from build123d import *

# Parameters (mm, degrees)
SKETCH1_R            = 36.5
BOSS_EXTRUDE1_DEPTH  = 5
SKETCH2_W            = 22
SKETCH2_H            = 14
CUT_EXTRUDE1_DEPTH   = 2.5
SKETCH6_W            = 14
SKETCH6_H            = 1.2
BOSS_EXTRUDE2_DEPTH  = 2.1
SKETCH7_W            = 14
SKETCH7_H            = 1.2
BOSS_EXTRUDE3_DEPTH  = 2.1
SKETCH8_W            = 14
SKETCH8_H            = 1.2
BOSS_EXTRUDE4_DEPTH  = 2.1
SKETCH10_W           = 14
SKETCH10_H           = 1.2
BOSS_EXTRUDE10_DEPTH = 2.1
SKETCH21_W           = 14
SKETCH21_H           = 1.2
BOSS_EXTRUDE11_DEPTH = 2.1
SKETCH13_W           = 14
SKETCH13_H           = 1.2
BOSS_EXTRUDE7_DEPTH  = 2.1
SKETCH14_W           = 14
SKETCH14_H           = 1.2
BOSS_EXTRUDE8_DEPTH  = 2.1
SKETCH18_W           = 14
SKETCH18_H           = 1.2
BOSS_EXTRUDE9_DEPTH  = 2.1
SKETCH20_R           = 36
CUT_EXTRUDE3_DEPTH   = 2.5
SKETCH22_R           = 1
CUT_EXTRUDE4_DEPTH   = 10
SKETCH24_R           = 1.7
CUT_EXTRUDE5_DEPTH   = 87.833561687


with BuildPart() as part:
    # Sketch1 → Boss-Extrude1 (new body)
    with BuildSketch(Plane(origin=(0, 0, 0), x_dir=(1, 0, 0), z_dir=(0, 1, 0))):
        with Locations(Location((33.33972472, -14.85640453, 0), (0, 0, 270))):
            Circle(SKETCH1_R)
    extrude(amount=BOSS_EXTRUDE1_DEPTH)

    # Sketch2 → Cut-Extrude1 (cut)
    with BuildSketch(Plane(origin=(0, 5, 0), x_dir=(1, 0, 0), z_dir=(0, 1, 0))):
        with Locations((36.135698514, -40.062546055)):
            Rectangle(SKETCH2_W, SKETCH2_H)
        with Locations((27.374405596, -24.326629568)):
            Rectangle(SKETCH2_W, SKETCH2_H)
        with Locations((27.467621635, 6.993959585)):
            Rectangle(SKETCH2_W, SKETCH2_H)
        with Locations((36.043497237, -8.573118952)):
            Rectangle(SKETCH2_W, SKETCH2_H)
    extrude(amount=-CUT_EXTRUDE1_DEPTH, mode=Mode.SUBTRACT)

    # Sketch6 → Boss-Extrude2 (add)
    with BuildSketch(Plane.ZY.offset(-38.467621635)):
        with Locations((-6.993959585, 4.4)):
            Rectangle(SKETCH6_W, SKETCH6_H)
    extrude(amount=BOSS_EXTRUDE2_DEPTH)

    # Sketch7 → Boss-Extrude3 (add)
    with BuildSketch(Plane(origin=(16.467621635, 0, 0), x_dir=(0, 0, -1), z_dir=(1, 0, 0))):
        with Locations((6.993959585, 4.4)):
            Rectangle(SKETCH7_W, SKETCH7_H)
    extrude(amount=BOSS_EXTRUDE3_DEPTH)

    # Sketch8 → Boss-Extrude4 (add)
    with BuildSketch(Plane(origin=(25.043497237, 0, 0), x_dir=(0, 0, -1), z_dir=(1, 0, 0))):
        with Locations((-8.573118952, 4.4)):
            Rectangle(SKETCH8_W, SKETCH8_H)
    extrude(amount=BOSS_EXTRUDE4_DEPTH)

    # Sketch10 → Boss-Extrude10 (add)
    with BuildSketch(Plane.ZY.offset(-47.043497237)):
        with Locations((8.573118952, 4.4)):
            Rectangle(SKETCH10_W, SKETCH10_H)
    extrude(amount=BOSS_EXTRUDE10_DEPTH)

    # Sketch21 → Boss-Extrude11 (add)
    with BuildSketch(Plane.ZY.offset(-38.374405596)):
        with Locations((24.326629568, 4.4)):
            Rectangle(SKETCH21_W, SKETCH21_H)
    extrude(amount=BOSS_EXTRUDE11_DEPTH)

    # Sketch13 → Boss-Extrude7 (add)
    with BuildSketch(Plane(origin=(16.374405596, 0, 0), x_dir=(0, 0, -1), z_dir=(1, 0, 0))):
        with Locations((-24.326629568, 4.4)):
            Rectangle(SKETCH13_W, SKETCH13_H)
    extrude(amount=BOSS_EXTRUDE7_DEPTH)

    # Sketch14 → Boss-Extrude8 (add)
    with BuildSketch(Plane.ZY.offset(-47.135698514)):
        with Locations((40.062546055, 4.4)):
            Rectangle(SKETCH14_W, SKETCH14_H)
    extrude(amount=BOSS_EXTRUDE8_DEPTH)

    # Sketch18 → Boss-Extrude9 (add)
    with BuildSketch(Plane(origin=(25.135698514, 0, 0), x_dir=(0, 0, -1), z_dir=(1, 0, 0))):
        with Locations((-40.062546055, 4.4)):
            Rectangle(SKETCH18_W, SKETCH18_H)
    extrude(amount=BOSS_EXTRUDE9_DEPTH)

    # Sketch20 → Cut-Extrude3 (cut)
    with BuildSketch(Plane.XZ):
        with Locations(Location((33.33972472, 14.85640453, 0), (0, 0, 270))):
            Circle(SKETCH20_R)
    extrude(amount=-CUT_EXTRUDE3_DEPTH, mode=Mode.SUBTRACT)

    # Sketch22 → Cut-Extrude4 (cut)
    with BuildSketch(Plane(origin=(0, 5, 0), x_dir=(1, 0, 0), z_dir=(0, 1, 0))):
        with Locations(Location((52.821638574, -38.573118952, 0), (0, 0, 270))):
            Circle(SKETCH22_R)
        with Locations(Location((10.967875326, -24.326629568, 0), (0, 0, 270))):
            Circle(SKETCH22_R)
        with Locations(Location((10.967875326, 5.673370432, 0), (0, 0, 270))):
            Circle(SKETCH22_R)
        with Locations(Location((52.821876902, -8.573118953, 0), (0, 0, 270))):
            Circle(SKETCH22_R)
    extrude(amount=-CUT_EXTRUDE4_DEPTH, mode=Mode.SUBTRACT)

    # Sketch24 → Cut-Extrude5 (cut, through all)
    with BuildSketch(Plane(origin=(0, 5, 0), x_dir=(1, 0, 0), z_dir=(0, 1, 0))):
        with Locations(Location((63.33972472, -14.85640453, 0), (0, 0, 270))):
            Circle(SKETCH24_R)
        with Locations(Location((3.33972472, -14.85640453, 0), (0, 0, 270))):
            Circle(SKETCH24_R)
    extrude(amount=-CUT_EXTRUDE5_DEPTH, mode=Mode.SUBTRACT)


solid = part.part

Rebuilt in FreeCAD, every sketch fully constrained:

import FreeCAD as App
import Part
import Sketcher

V = App.Vector
Q = App.Units.Quantity

doc = App.newDocument("Part")
params = doc.addObject("Spreadsheet::Sheet", "Params")
for row, (alias, value) in enumerate([
    ("sketch1_diameter", "73 mm"),
    ("pad1_length", "5 mm"),
    ("sketch2_width", "22 mm"),
    ("sketch2_height", "14 mm"),
    ("pocket1_length", "2.5 mm"),
    ("sketch3_height", "14 mm"),
    ("sketch3_width", "1.2 mm"),
    ("pad2_length", "2.1 mm"),
    ("sketch4_height", "14 mm"),
    ("sketch4_width", "1.2 mm"),
    ("pad3_length", "2.1 mm"),
    ("sketch5_height", "14 mm"),
    ("sketch5_width", "1.2 mm"),
    ("pad4_length", "2.1 mm"),
    ("sketch6_height", "14 mm"),
    ("sketch6_width", "1.2 mm"),
    ("pad5_length", "2.1 mm"),
    ("sketch7_height", "14 mm"),
    ("sketch7_width", "1.2 mm"),
    ("pad6_length", "2.1 mm"),
    ("sketch8_height", "14 mm"),
    ("sketch8_width", "1.2 mm"),
    ("pad7_length", "2.1 mm"),
    ("sketch9_height", "14 mm"),
    ("sketch9_width", "1.2 mm"),
    ("pad8_length", "2.1 mm"),
    ("sketch10_height", "14 mm"),
    ("sketch10_width", "1.2 mm"),
    ("pad9_length", "2.1 mm"),
    ("sketch11_diameter", "72 mm"),
    ("pocket2_length", "2.5 mm"),
    ("sketch12_diameter", "2 mm"),
    ("pocket3_length", "10 mm"),
    ("sketch13_diameter", "3.4 mm"),
], start=1):
    params.set(f"A{row}", alias)
    params.set(f"B{row}", "=" + value)
    params.setAlias(f"B{row}", alias)

body = doc.addObject("PartDesign::Body", "Body")

# Sketch on XZ plane
sketch1 = doc.addObject("Sketcher::SketchObject", "Sketch")
body.addObject(sketch1)
sketch1.AttachmentSupport = (doc.XZ_Plane, [""])
sketch1.MapMode = "FlatFace"
sketch1.addGeometry(Part.Circle(V(33, 15, 0), V(0, 0, 1), 36), False)
sketch1.addConstraint(Sketcher.Constraint("Diameter", 0, Q("73 mm")))
sketch1.addConstraint(Sketcher.Constraint("DistanceX", -1, 1, 0, 3, Q("33.339725 mm")))
sketch1.addConstraint(Sketcher.Constraint("DistanceY", -1, 1, 0, 3, Q("14.856405 mm")))
sketch1.setExpression("Constraints[0]", "Params.sketch1_diameter")
pad1 = doc.addObject("PartDesign::Pad", "Pad")
body.addObject(pad1)
pad1.Profile = sketch1
pad1.setExpression("Length", "Params.pad1_length")
pad1.Reversed = True

# Sketch on XZ plane
sketch2 = doc.addObject("Sketcher::SketchObject", "Sketch001")
body.addObject(sketch2)
sketch2.AttachmentSupport = (doc.XZ_Plane, [""])
sketch2.MapMode = "FlatFace"
sketch2.AttachmentOffset = App.Placement(V(0, 0, -5), App.Rotation())
sketch2.addGeometry(Part.LineSegment(V(25, 33, 0), V(25, 47, 0)), False)
sketch2.addGeometry(Part.LineSegment(V(25, 47, 0), V(47, 47, 0)), False)
sketch2.addGeometry(Part.LineSegment(V(47, 47, 0), V(47, 33, 0)), False)
sketch2.addGeometry(Part.LineSegment(V(47, 33, 0), V(25, 33, 0)), False)
sketch2.addGeometry(Part.LineSegment(V(16, 17, 0), V(16, 31, 0)), False)
sketch2.addGeometry(Part.LineSegment(V(16, 31, 0), V(38, 31, 0)), False)
sketch2.addGeometry(Part.LineSegment(V(38, 31, 0), V(38, 17, 0)), False)
sketch2.addGeometry(Part.LineSegment(V(38, 17, 0), V(16, 17, 0)), False)
sketch2.addGeometry(Part.LineSegment(V(16, -14, 0), V(16, 0, 0)), False)
sketch2.addGeometry(Part.LineSegment(V(16, 0, 0), V(38, 0, 0)), False)
sketch2.addGeometry(Part.LineSegment(V(38, 0, 0), V(38, -14, 0)), False)
sketch2.addGeometry(Part.LineSegment(V(38, -14, 0), V(16, -14, 0)), False)
sketch2.addGeometry(Part.LineSegment(V(25, 2, 0), V(25, 16, 0)), False)
sketch2.addGeometry(Part.LineSegment(V(25, 16, 0), V(47, 16, 0)), False)
sketch2.addGeometry(Part.LineSegment(V(47, 16, 0), V(47, 2, 0)), False)
sketch2.addGeometry(Part.LineSegment(V(47, 2, 0), V(25, 2, 0)), False)
sketch2.addConstraint(Sketcher.Constraint("Coincident", 0, 2, 1, 1))
sketch2.addConstraint(Sketcher.Constraint("Coincident", 1, 2, 2, 1))
sketch2.addConstraint(Sketcher.Constraint("Coincident", 2, 2, 3, 1))
sketch2.addConstraint(Sketcher.Constraint("Coincident", 3, 2, 0, 1))
sketch2.addConstraint(Sketcher.Constraint("Coincident", 4, 2, 5, 1))
sketch2.addConstraint(Sketcher.Constraint("Coincident", 5, 2, 6, 1))
sketch2.addConstraint(Sketcher.Constraint("Coincident", 6, 2, 7, 1))
sketch2.addConstraint(Sketcher.Constraint("Coincident", 7, 2, 4, 1))
sketch2.addConstraint(Sketcher.Constraint("Coincident", 8, 2, 9, 1))
sketch2.addConstraint(Sketcher.Constraint("Coincident", 9, 2, 10, 1))
sketch2.addConstraint(Sketcher.Constraint("Coincident", 10, 2, 11, 1))
sketch2.addConstraint(Sketcher.Constraint("Coincident", 11, 2, 8, 1))
sketch2.addConstraint(Sketcher.Constraint("Coincident", 12, 2, 13, 1))
sketch2.addConstraint(Sketcher.Constraint("Coincident", 13, 2, 14, 1))
sketch2.addConstraint(Sketcher.Constraint("Coincident", 14, 2, 15, 1))
sketch2.addConstraint(Sketcher.Constraint("Coincident", 15, 2, 12, 1))
sketch2.addConstraint(Sketcher.Constraint("Vertical", 0))
sketch2.addConstraint(Sketcher.Constraint("Horizontal", 1))
sketch2.addConstraint(Sketcher.Constraint("Vertical", 2))
sketch2.addConstraint(Sketcher.Constraint("Horizontal", 3))
sketch2.addConstraint(Sketcher.Constraint("Vertical", 4))
sketch2.addConstraint(Sketcher.Constraint("Horizontal", 5))
sketch2.addConstraint(Sketcher.Constraint("Vertical", 6))
sketch2.addConstraint(Sketcher.Constraint("Horizontal", 7))
sketch2.addConstraint(Sketcher.Constraint("Vertical", 8))
sketch2.addConstraint(Sketcher.Constraint("Horizontal", 9))
sketch2.addConstraint(Sketcher.Constraint("Vertical", 10))
sketch2.addConstraint(Sketcher.Constraint("Horizontal", 11))
sketch2.addConstraint(Sketcher.Constraint("Vertical", 12))
sketch2.addConstraint(Sketcher.Constraint("Horizontal", 13))
sketch2.addConstraint(Sketcher.Constraint("Vertical", 14))
sketch2.addConstraint(Sketcher.Constraint("Horizontal", 15))
sketch2.addConstraint(Sketcher.Constraint("Equal", 3, 5))
sketch2.addConstraint(Sketcher.Constraint("Equal", 7, 9))
sketch2.addConstraint(Sketcher.Constraint("Equal", 11, 13))
sketch2.addConstraint(Sketcher.Constraint("Equal", 2, 4))
sketch2.addConstraint(Sketcher.Constraint("Equal", 6, 8))
sketch2.addConstraint(Sketcher.Constraint("Equal", 10, 12))
sketch2.addConstraint(Sketcher.Constraint("DistanceX", 1, 1, 1, 2, Q("22 mm")))
sketch2.addConstraint(Sketcher.Constraint("DistanceY", 0, 1, 0, 2, Q("14 mm")))
sketch2.addConstraint(Sketcher.Constraint("DistanceX", -1, 1, 0, 2, Q("25.135699 mm")))
sketch2.addConstraint(Sketcher.Constraint("DistanceX", 12, 2, 3, 2, Q("0.092201 mm")))
sketch2.addConstraint(Sketcher.Constraint("DistanceY", -1, 1, 4, 2, Q("31.32663 mm")))
sketch2.addConstraint(Sketcher.Constraint("DistanceX", -1, 1, 8, 2, Q("16.467622 mm")))
sketch2.addConstraint(Sketcher.Constraint("DistanceY", -1, 1, 8, 2, Q("0.00604 mm")))
sketch2.addConstraint(Sketcher.Constraint("DistanceY", -1, 1, 12, 2, Q("15.573119 mm")))
sketch2.addConstraint(Sketcher.Constraint("DistanceX", 7, 2, 12, 2, Q("8.669092 mm")))
sketch2.addConstraint(Sketcher.Constraint("DistanceY", -1, 1, 0, 2, Q("47.062546 mm")))
sketch2.setExpression("Constraints[38]", "Params.sketch2_width")
sketch2.setExpression("Constraints[39]", "Params.sketch2_height")
pocket1 = doc.addObject("PartDesign::Pocket", "Pocket")
body.addObject(pocket1)
pocket1.Profile = sketch2
pocket1.setExpression("Length", "Params.pocket1_length")
pocket1.Reversed = True

# Sketch on YZ plane
sketch3 = doc.addObject("Sketcher::SketchObject", "Sketch002")
body.addObject(sketch3)
sketch3.AttachmentSupport = (doc.YZ_Plane, [""])
sketch3.MapMode = "FlatFace"
sketch3.AttachmentOffset = App.Placement(V(0, 0, 38.467622), App.Rotation())
sketch3.addGeometry(Part.LineSegment(V(5, -14, 0), V(3.8, -14, 0)), False)
sketch3.addGeometry(Part.LineSegment(V(3.8, -14, 0), V(3.8, 0, 0)), False)
sketch3.addGeometry(Part.LineSegment(V(3.8, 0, 0), V(5, 0, 0)), False)
sketch3.addGeometry(Part.LineSegment(V(5, 0, 0), V(5, -14, 0)), False)
sketch3.addConstraint(Sketcher.Constraint("Coincident", 0, 2, 1, 1))
sketch3.addConstraint(Sketcher.Constraint("Coincident", 1, 2, 2, 1))
sketch3.addConstraint(Sketcher.Constraint("Coincident", 2, 2, 3, 1))
sketch3.addConstraint(Sketcher.Constraint("Coincident", 3, 2, 0, 1))
sketch3.addConstraint(Sketcher.Constraint("Horizontal", 0))
sketch3.addConstraint(Sketcher.Constraint("Vertical", 1))
sketch3.addConstraint(Sketcher.Constraint("Horizontal", 2))
sketch3.addConstraint(Sketcher.Constraint("Vertical", 3))
sketch3.addConstraint(Sketcher.Constraint("DistanceY", 1, 1, 1, 2, Q("14 mm")))
sketch3.addConstraint(Sketcher.Constraint("DistanceX", 0, 2, 0, 1, Q("1.2 mm")))
sketch3.addConstraint(Sketcher.Constraint("DistanceX", -1, 1, 2, 2, Q("5 mm")))
sketch3.addConstraint(Sketcher.Constraint("DistanceY", 0, 2, -1, 1, Q("13.99396 mm")))
sketch3.setExpression("Constraints[8]", "Params.sketch3_height")
sketch3.setExpression("Constraints[9]", "Params.sketch3_width")
pad2 = doc.addObject("PartDesign::Pad", "Pad001")
body.addObject(pad2)
pad2.Profile = sketch3
pad2.setExpression("Length", "Params.pad2_length")
pad2.Reversed = True

# Sketch on YZ plane
sketch4 = doc.addObject("Sketcher::SketchObject", "Sketch003")
body.addObject(sketch4)
sketch4.AttachmentSupport = (doc.YZ_Plane, [""])
sketch4.MapMode = "FlatFace"
sketch4.AttachmentOffset = App.Placement(V(0, 0, 16.467622), App.Rotation())
sketch4.addGeometry(Part.LineSegment(V(5, 0, 0), V(3.8, 0, 0)), False)
sketch4.addGeometry(Part.LineSegment(V(3.8, 0, 0), V(3.8, -14, 0)), False)
sketch4.addGeometry(Part.LineSegment(V(3.8, -14, 0), V(5, -14, 0)), False)
sketch4.addGeometry(Part.LineSegment(V(5, -14, 0), V(5, 0, 0)), False)
sketch4.addConstraint(Sketcher.Constraint("Coincident", 0, 2, 1, 1))
sketch4.addConstraint(Sketcher.Constraint("Coincident", 1, 2, 2, 1))
sketch4.addConstraint(Sketcher.Constraint("Coincident", 2, 2, 3, 1))
sketch4.addConstraint(Sketcher.Constraint("Coincident", 3, 2, 0, 1))
sketch4.addConstraint(Sketcher.Constraint("Horizontal", 0))
sketch4.addConstraint(Sketcher.Constraint("Vertical", 1))
sketch4.addConstraint(Sketcher.Constraint("Horizontal", 2))
sketch4.addConstraint(Sketcher.Constraint("Vertical", 3))
sketch4.addConstraint(Sketcher.Constraint("DistanceY", 1, 2, 1, 1, Q("14 mm")))
sketch4.addConstraint(Sketcher.Constraint("DistanceX", 0, 2, 0, 1, Q("1.2 mm")))
sketch4.addConstraint(Sketcher.Constraint("DistanceX", -1, 1, 2, 2, Q("5 mm")))
sketch4.addConstraint(Sketcher.Constraint("DistanceY", -1, 1, 0, 2, Q("0.00604 mm")))
sketch4.setExpression("Constraints[8]", "Params.sketch4_height")
sketch4.setExpression("Constraints[9]", "Params.sketch4_width")
pad3 = doc.addObject("PartDesign::Pad", "Pad002")
body.addObject(pad3)
pad3.Profile = sketch4
pad3.setExpression("Length", "Params.pad3_length")

# Sketch on YZ plane
sketch5 = doc.addObject("Sketcher::SketchObject", "Sketch004")
body.addObject(sketch5)
sketch5.AttachmentSupport = (doc.YZ_Plane, [""])
sketch5.MapMode = "FlatFace"
sketch5.AttachmentOffset = App.Placement(V(0, 0, 25.043497), App.Rotation())
sketch5.addGeometry(Part.LineSegment(V(5, 15.6, 0), V(3.8, 15.6, 0)), False)
sketch5.addGeometry(Part.LineSegment(V(3.8, 15.6, 0), V(3.8, 1.6, 0)), False)
sketch5.addGeometry(Part.LineSegment(V(3.8, 1.6, 0), V(5, 1.6, 0)), False)
sketch5.addGeometry(Part.LineSegment(V(5, 1.6, 0), V(5, 15.6, 0)), False)
sketch5.addConstraint(Sketcher.Constraint("Coincident", 0, 2, 1, 1))
sketch5.addConstraint(Sketcher.Constraint("Coincident", 1, 2, 2, 1))
sketch5.addConstraint(Sketcher.Constraint("Coincident", 2, 2, 3, 1))
sketch5.addConstraint(Sketcher.Constraint("Coincident", 3, 2, 0, 1))
sketch5.addConstraint(Sketcher.Constraint("Horizontal", 0))
sketch5.addConstraint(Sketcher.Constraint("Vertical", 1))
sketch5.addConstraint(Sketcher.Constraint("Horizontal", 2))
sketch5.addConstraint(Sketcher.Constraint("Vertical", 3))
sketch5.addConstraint(Sketcher.Constraint("DistanceY", 1, 2, 1, 1, Q("14 mm")))
sketch5.addConstraint(Sketcher.Constraint("DistanceX", 0, 2, 0, 1, Q("1.2 mm")))
sketch5.addConstraint(Sketcher.Constraint("DistanceX", -1, 1, 2, 2, Q("5 mm")))
sketch5.addConstraint(Sketcher.Constraint("DistanceY", -1, 1, 0, 2, Q("15.573119 mm")))
sketch5.setExpression("Constraints[8]", "Params.sketch5_height")
sketch5.setExpression("Constraints[9]", "Params.sketch5_width")
pad4 = doc.addObject("PartDesign::Pad", "Pad003")
body.addObject(pad4)
pad4.Profile = sketch5
pad4.setExpression("Length", "Params.pad4_length")

# Sketch on YZ plane
sketch6 = doc.addObject("Sketcher::SketchObject", "Sketch005")
body.addObject(sketch6)
sketch6.AttachmentSupport = (doc.YZ_Plane, [""])
sketch6.MapMode = "FlatFace"
sketch6.AttachmentOffset = App.Placement(V(0, 0, 47.043497), App.Rotation())
sketch6.addGeometry(Part.LineSegment(V(5, 1.6, 0), V(3.8, 1.6, 0)), False)
sketch6.addGeometry(Part.LineSegment(V(3.8, 1.6, 0), V(3.8, 15.6, 0)), False)
sketch6.addGeometry(Part.LineSegment(V(3.8, 15.6, 0), V(5, 15.6, 0)), False)
sketch6.addGeometry(Part.LineSegment(V(5, 15.6, 0), V(5, 1.6, 0)), False)
sketch6.addConstraint(Sketcher.Constraint("Coincident", 0, 2, 1, 1))
sketch6.addConstraint(Sketcher.Constraint("Coincident", 1, 2, 2, 1))
sketch6.addConstraint(Sketcher.Constraint("Coincident", 2, 2, 3, 1))
sketch6.addConstraint(Sketcher.Constraint("Coincident", 3, 2, 0, 1))
sketch6.addConstraint(Sketcher.Constraint("Horizontal", 0))
sketch6.addConstraint(Sketcher.Constraint("Vertical", 1))
sketch6.addConstraint(Sketcher.Constraint("Horizontal", 2))
sketch6.addConstraint(Sketcher.Constraint("Vertical", 3))
sketch6.addConstraint(Sketcher.Constraint("DistanceY", 1, 1, 1, 2, Q("14 mm")))
sketch6.addConstraint(Sketcher.Constraint("DistanceX", 0, 2, 0, 1, Q("1.2 mm")))
sketch6.addConstraint(Sketcher.Constraint("DistanceX", -1, 1, 2, 2, Q("5 mm")))
sketch6.addConstraint(Sketcher.Constraint("DistanceY", -1, 1, 0, 2, Q("1.573119 mm")))
sketch6.setExpression("Constraints[8]", "Params.sketch6_height")
sketch6.setExpression("Constraints[9]", "Params.sketch6_width")
pad5 = doc.addObject("PartDesign::Pad", "Pad004")
body.addObject(pad5)
pad5.Profile = sketch6
pad5.setExpression("Length", "Params.pad5_length")
pad5.Reversed = True

# Sketch on YZ plane
sketch7 = doc.addObject("Sketcher::SketchObject", "Sketch006")
body.addObject(sketch7)
sketch7.AttachmentSupport = (doc.YZ_Plane, [""])
sketch7.MapMode = "FlatFace"
sketch7.AttachmentOffset = App.Placement(V(0, 0, 38.374406), App.Rotation())
sketch7.addGeometry(Part.LineSegment(V(5, 17.3, 0), V(3.8, 17.3, 0)), False)
sketch7.addGeometry(Part.LineSegment(V(3.8, 17.3, 0), V(3.8, 31.3, 0)), False)
sketch7.addGeometry(Part.LineSegment(V(3.8, 31.3, 0), V(5, 31.3, 0)), False)
sketch7.addGeometry(Part.LineSegment(V(5, 31.3, 0), V(5, 17.3, 0)), False)
sketch7.addConstraint(Sketcher.Constraint("Coincident", 0, 2, 1, 1))
sketch7.addConstraint(Sketcher.Constraint("Coincident", 1, 2, 2, 1))
sketch7.addConstraint(Sketcher.Constraint("Coincident", 2, 2, 3, 1))
sketch7.addConstraint(Sketcher.Constraint("Coincident", 3, 2, 0, 1))
sketch7.addConstraint(Sketcher.Constraint("Horizontal", 0))
sketch7.addConstraint(Sketcher.Constraint("Vertical", 1))
sketch7.addConstraint(Sketcher.Constraint("Horizontal", 2))
sketch7.addConstraint(Sketcher.Constraint("Vertical", 3))
sketch7.addConstraint(Sketcher.Constraint("DistanceY", 1, 1, 1, 2, Q("14 mm")))
sketch7.addConstraint(Sketcher.Constraint("DistanceX", 0, 2, 0, 1, Q("1.2 mm")))
sketch7.addConstraint(Sketcher.Constraint("DistanceX", -1, 1, 2, 2, Q("5 mm")))
sketch7.addConstraint(Sketcher.Constraint("DistanceY", -1, 1, 0, 2, Q("17.32663 mm")))
sketch7.setExpression("Constraints[8]", "Params.sketch7_height")
sketch7.setExpression("Constraints[9]", "Params.sketch7_width")
pad6 = doc.addObject("PartDesign::Pad", "Pad005")
body.addObject(pad6)
pad6.Profile = sketch7
pad6.setExpression("Length", "Params.pad6_length")
pad6.Reversed = True

# Sketch on YZ plane
sketch8 = doc.addObject("Sketcher::SketchObject", "Sketch007")
body.addObject(sketch8)
sketch8.AttachmentSupport = (doc.YZ_Plane, [""])
sketch8.MapMode = "FlatFace"
sketch8.AttachmentOffset = App.Placement(V(0, 0, 16.374406), App.Rotation())
sketch8.addGeometry(Part.LineSegment(V(5, 31.3, 0), V(3.8, 31.3, 0)), False)
sketch8.addGeometry(Part.LineSegment(V(3.8, 31.3, 0), V(3.8, 17.3, 0)), False)
sketch8.addGeometry(Part.LineSegment(V(3.8, 17.3, 0), V(5, 17.3, 0)), False)
sketch8.addGeometry(Part.LineSegment(V(5, 17.3, 0), V(5, 31.3, 0)), False)
sketch8.addConstraint(Sketcher.Constraint("Coincident", 0, 2, 1, 1))
sketch8.addConstraint(Sketcher.Constraint("Coincident", 1, 2, 2, 1))
sketch8.addConstraint(Sketcher.Constraint("Coincident", 2, 2, 3, 1))
sketch8.addConstraint(Sketcher.Constraint("Coincident", 3, 2, 0, 1))
sketch8.addConstraint(Sketcher.Constraint("Horizontal", 0))
sketch8.addConstraint(Sketcher.Constraint("Vertical", 1))
sketch8.addConstraint(Sketcher.Constraint("Horizontal", 2))
sketch8.addConstraint(Sketcher.Constraint("Vertical", 3))
sketch8.addConstraint(Sketcher.Constraint("DistanceY", 1, 2, 1, 1, Q("14 mm")))
sketch8.addConstraint(Sketcher.Constraint("DistanceX", 0, 2, 0, 1, Q("1.2 mm")))
sketch8.addConstraint(Sketcher.Constraint("DistanceX", -1, 1, 2, 2, Q("5 mm")))
sketch8.addConstraint(Sketcher.Constraint("DistanceY", -1, 1, 0, 2, Q("31.32663 mm")))
sketch8.setExpression("Constraints[8]", "Params.sketch8_height")
sketch8.setExpression("Constraints[9]", "Params.sketch8_width")
pad7 = doc.addObject("PartDesign::Pad", "Pad006")
body.addObject(pad7)
pad7.Profile = sketch8
pad7.setExpression("Length", "Params.pad7_length")

# Sketch on YZ plane
sketch9 = doc.addObject("Sketcher::SketchObject", "Sketch008")
body.addObject(sketch9)
sketch9.AttachmentSupport = (doc.YZ_Plane, [""])
sketch9.MapMode = "FlatFace"
sketch9.AttachmentOffset = App.Placement(V(0, 0, 47.135699), App.Rotation())
sketch9.addGeometry(Part.LineSegment(V(5, 33.1, 0), V(3.8, 33.1, 0)), False)
sketch9.addGeometry(Part.LineSegment(V(3.8, 33.1, 0), V(3.8, 47.1, 0)), False)
sketch9.addGeometry(Part.LineSegment(V(3.8, 47.1, 0), V(5, 47.1, 0)), False)
sketch9.addGeometry(Part.LineSegment(V(5, 47.1, 0), V(5, 33.1, 0)), False)
sketch9.addConstraint(Sketcher.Constraint("Coincident", 0, 2, 1, 1))
sketch9.addConstraint(Sketcher.Constraint("Coincident", 1, 2, 2, 1))
sketch9.addConstraint(Sketcher.Constraint("Coincident", 2, 2, 3, 1))
sketch9.addConstraint(Sketcher.Constraint("Coincident", 3, 2, 0, 1))
sketch9.addConstraint(Sketcher.Constraint("Horizontal", 0))
sketch9.addConstraint(Sketcher.Constraint("Vertical", 1))
sketch9.addConstraint(Sketcher.Constraint("Horizontal", 2))
sketch9.addConstraint(Sketcher.Constraint("Vertical", 3))
sketch9.addConstraint(Sketcher.Constraint("DistanceY", 1, 1, 1, 2, Q("14 mm")))
sketch9.addConstraint(Sketcher.Constraint("DistanceX", 0, 2, 0, 1, Q("1.2 mm")))
sketch9.addConstraint(Sketcher.Constraint("DistanceX", -1, 1, 2, 2, Q("5 mm")))
sketch9.addConstraint(Sketcher.Constraint("DistanceY", -1, 1, 0, 2, Q("33.062546 mm")))
sketch9.setExpression("Constraints[8]", "Params.sketch9_height")
sketch9.setExpression("Constraints[9]", "Params.sketch9_width")
pad8 = doc.addObject("PartDesign::Pad", "Pad007")
body.addObject(pad8)
pad8.Profile = sketch9
pad8.setExpression("Length", "Params.pad8_length")
pad8.Reversed = True

# Sketch on YZ plane
sketch10 = doc.addObject("Sketcher::SketchObject", "Sketch009")
body.addObject(sketch10)
sketch10.AttachmentSupport = (doc.YZ_Plane, [""])
sketch10.MapMode = "FlatFace"
sketch10.AttachmentOffset = App.Placement(V(0, 0, 25.135699), App.Rotation())
sketch10.addGeometry(Part.LineSegment(V(5, 47.1, 0), V(3.8, 47.1, 0)), False)
sketch10.addGeometry(Part.LineSegment(V(3.8, 47.1, 0), V(3.8, 33.1, 0)), False)
sketch10.addGeometry(Part.LineSegment(V(3.8, 33.1, 0), V(5, 33.1, 0)), False)
sketch10.addGeometry(Part.LineSegment(V(5, 33.1, 0), V(5, 47.1, 0)), False)
sketch10.addConstraint(Sketcher.Constraint("Coincident", 0, 2, 1, 1))
sketch10.addConstraint(Sketcher.Constraint("Coincident", 1, 2, 2, 1))
sketch10.addConstraint(Sketcher.Constraint("Coincident", 2, 2, 3, 1))
sketch10.addConstraint(Sketcher.Constraint("Coincident", 3, 2, 0, 1))
sketch10.addConstraint(Sketcher.Constraint("Horizontal", 0))
sketch10.addConstraint(Sketcher.Constraint("Vertical", 1))
sketch10.addConstraint(Sketcher.Constraint("Horizontal", 2))
sketch10.addConstraint(Sketcher.Constraint("Vertical", 3))
sketch10.addConstraint(Sketcher.Constraint("DistanceY", 1, 2, 1, 1, Q("14 mm")))
sketch10.addConstraint(Sketcher.Constraint("DistanceX", 0, 2, 0, 1, Q("1.2 mm")))
sketch10.addConstraint(Sketcher.Constraint("DistanceX", -1, 1, 2, 2, Q("5 mm")))
sketch10.addConstraint(Sketcher.Constraint("DistanceY", -1, 1, 0, 2, Q("47.062546 mm")))
sketch10.setExpression("Constraints[8]", "Params.sketch10_height")
sketch10.setExpression("Constraints[9]", "Params.sketch10_width")
pad9 = doc.addObject("PartDesign::Pad", "Pad008")
body.addObject(pad9)
pad9.Profile = sketch10
pad9.setExpression("Length", "Params.pad9_length")

# Sketch on XZ plane
sketch11 = doc.addObject("Sketcher::SketchObject", "Sketch010")
body.addObject(sketch11)
sketch11.AttachmentSupport = (doc.XZ_Plane, [""])
sketch11.MapMode = "FlatFace"
sketch11.addGeometry(Part.Circle(V(33, 15, 0), V(0, 0, 1), 36), False)
sketch11.addConstraint(Sketcher.Constraint("Diameter", 0, Q("72 mm")))
sketch11.addConstraint(Sketcher.Constraint("DistanceX", -1, 1, 0, 3, Q("33.339725 mm")))
sketch11.addConstraint(Sketcher.Constraint("DistanceY", -1, 1, 0, 3, Q("14.856405 mm")))
sketch11.setExpression("Constraints[0]", "Params.sketch11_diameter")
pocket2 = doc.addObject("PartDesign::Pocket", "Pocket001")
body.addObject(pocket2)
pocket2.Profile = sketch11
pocket2.setExpression("Length", "Params.pocket2_length")

# Sketch on XZ plane
sketch12 = doc.addObject("Sketcher::SketchObject", "Sketch011")
body.addObject(sketch12)
sketch12.AttachmentSupport = (doc.XZ_Plane, [""])
sketch12.MapMode = "FlatFace"
sketch12.AttachmentOffset = App.Placement(V(0, 0, -5), App.Rotation())
sketch12.addGeometry(Part.Circle(V(52.8, 38.6, 0), V(0, 0, 1), 1), False)
sketch12.addGeometry(Part.Circle(V(11, 24.3, 0), V(0, 0, 1), 1), False)
sketch12.addGeometry(Part.Circle(V(11, -5.7, 0), V(0, 0, 1), 1), False)
sketch12.addGeometry(Part.Circle(V(52.8, 8.6, 0), V(0, 0, 1), 1), False)
sketch12.addConstraint(Sketcher.Constraint("Equal", 0, 1))
sketch12.addConstraint(Sketcher.Constraint("Equal", 1, 2))
sketch12.addConstraint(Sketcher.Constraint("Equal", 2, 3))
sketch12.addConstraint(Sketcher.Constraint("Vertical", 1, 3, 2, 3))
sketch12.addConstraint(Sketcher.Constraint("Diameter", 0, Q("2 mm")))
sketch12.addConstraint(Sketcher.Constraint("DistanceY", 2, 3, 1, 3, Q("30 mm")))
sketch12.addConstraint(Sketcher.Constraint("DistanceY", 3, 3, 0, 3, Q("30 mm")))
sketch12.addConstraint(Sketcher.Constraint("DistanceX", 2, 3, 3, 3, Q("41.854002 mm")))
sketch12.addConstraint(Sketcher.Constraint("DistanceX", -1, 1, 0, 3, Q("52.821639 mm")))
sketch12.addConstraint(Sketcher.Constraint("DistanceY", -1, 1, 0, 3, Q("38.573119 mm")))
sketch12.addConstraint(Sketcher.Constraint("DistanceY", -1, 1, 1, 3, Q("24.32663 mm")))
sketch12.addConstraint(Sketcher.Constraint("DistanceX", 0, 3, 3, 3, Q("0.000238 mm")))
sketch12.setExpression("Constraints[4]", "Params.sketch12_diameter")
pocket3 = doc.addObject("PartDesign::Pocket", "Pocket002")
body.addObject(pocket3)
pocket3.Profile = sketch12
pocket3.setExpression("Length", "Params.pocket3_length")
pocket3.Reversed = True

# Sketch on XZ plane
sketch13 = doc.addObject("Sketcher::SketchObject", "Sketch012")
body.addObject(sketch13)
sketch13.AttachmentSupport = (doc.XZ_Plane, [""])
sketch13.MapMode = "FlatFace"
sketch13.AttachmentOffset = App.Placement(V(0, 0, -5), App.Rotation())
sketch13.addGeometry(Part.Circle(V(63.3, 14.9, 0), V(0, 0, 1), 1.7), False)
sketch13.addGeometry(Part.Circle(V(3.3, 14.9, 0), V(0, 0, 1), 1.7), False)
sketch13.addConstraint(Sketcher.Constraint("Equal", 0, 1))
sketch13.addConstraint(Sketcher.Constraint("Horizontal", 0, 3, 1, 3))
sketch13.addConstraint(Sketcher.Constraint("Diameter", 0, Q("3.4 mm")))
sketch13.addConstraint(Sketcher.Constraint("DistanceX", 1, 3, 0, 3, Q("60 mm")))
sketch13.addConstraint(Sketcher.Constraint("DistanceX", -1, 1, 0, 3, Q("63.339725 mm")))
sketch13.addConstraint(Sketcher.Constraint("DistanceY", -1, 1, 0, 3, Q("14.856405 mm")))
sketch13.setExpression("Constraints[2]", "Params.sketch13_diameter")
pocket4 = doc.addObject("PartDesign::Pocket", "Pocket003")
body.addObject(pocket4)
pocket4.Profile = sketch13
pocket4.Type = "ThroughAll"
pocket4.Reversed = True

doc.recompute()
